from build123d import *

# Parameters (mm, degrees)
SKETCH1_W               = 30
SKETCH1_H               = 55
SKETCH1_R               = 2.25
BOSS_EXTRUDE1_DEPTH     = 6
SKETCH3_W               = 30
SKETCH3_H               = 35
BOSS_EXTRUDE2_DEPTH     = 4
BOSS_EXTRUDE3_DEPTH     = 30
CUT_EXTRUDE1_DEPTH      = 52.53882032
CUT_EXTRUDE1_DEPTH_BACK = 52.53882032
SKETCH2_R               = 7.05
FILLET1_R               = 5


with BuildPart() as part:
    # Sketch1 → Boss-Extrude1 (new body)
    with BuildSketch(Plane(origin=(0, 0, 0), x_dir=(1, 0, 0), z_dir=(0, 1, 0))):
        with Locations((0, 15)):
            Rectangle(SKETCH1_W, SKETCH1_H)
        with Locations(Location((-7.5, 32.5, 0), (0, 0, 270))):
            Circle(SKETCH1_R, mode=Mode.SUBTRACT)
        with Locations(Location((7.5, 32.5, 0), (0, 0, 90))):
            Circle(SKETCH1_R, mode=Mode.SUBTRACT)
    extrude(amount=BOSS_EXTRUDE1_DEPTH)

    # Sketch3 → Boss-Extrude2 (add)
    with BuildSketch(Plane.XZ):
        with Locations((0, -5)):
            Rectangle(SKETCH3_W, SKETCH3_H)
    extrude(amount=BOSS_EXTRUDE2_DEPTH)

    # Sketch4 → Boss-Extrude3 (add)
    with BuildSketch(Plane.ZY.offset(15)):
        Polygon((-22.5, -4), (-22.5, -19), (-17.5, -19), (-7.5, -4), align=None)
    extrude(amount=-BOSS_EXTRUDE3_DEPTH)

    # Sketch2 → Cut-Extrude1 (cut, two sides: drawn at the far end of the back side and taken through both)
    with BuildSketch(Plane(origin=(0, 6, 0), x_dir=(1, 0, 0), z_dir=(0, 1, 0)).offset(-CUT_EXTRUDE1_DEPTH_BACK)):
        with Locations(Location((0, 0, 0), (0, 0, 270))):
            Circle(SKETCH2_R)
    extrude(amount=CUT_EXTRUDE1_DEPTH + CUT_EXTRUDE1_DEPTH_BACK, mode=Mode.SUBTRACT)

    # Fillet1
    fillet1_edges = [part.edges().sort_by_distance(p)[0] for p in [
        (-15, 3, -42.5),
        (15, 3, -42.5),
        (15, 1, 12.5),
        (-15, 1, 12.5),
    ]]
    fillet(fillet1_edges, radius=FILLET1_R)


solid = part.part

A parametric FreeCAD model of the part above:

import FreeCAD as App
import Part
import Sketcher

V = App.Vector


def edges_at(feature, points):
    """Names of the edges that pass closest to the given points."""
    edges = feature.Shape.Edges
    near = lambda p: min(range(len(edges)), key=lambda i: edges[i].distToShape(Part.Vertex(*p))[0])
    return sorted({f"Edge{near(p) + 1}" for p in points})


def add_polygon(sketch, points):
    """Adds a closed chain of lines whose ends are joined by coincident constraints."""
    first, n = sketch.GeometryCount, len(points)
    for a, b in zip(points, points[1:] + points[:1]):
        sketch.addGeometry(Part.LineSegment(App.Vector(*a, 0), App.Vector(*b, 0)), False)
    for i in range(n):
        sketch.addConstraint(Sketcher.Constraint("Coincident", first + i, 2, first + (i + 1) % n, 1))

doc = App.newDocument("Part")
body = doc.addObject("PartDesign::Body", "Body")

sketch1 = doc.addObject("Sketcher::SketchObject", "Sketch")
body.addObject(sketch1)
sketch1.AttachmentSupport = (doc.XZ_Plane, [""])
sketch1.MapMode = "FlatFace"
add_polygon(sketch1, [(-15, -42.5), (-15, 12.5), (15, 12.5), (15, -42.5)])
sketch1.addGeometry(Part.Circle(V(-7.5, -32.5, 0), V(0, 0, 1), 2.2), False)
sketch1.addGeometry(Part.Circle(V(7.5, -32.5, 0), V(0, 0, 1), 2.2), False)
sketch1.addConstraint([
    Sketcher.Constraint("Vertical", 0),
    Sketcher.Constraint("Horizontal", 1),
    Sketcher.Constraint("Vertical", 2),
    Sketcher.Constraint("Horizontal", 3),
    Sketcher.Constraint("Equal", 4, 5),
    Sketcher.Constraint("Symmetric", 4, 3, 5, 3, -2),
    Sketcher.Constraint("Diameter", 4, 4.5),
    Sketcher.Constraint("DistanceX", 1, 1, 1, 2, 30.0),
    Sketcher.Constraint("DistanceY", 0, 1, 0, 2, 55.0),
    Sketcher.Constraint("DistanceX", 0, 2, -1, 1, 15.0),
    Sketcher.Constraint("DistanceX", 4, 3, 5, 3, 15.0),
    Sketcher.Constraint("DistanceY", 4, 3, 0, 2, 45.0),
    Sketcher.Constraint("DistanceY", 4, 3, -1, 1, 32.5),
])
pad1 = doc.addObject("PartDesign::Pad", "Pad")
body.addObject(pad1)
pad1.Profile = sketch1
pad1.Length = 6
pad1.Reversed = True

sketch2 = doc.addObject("Sketcher::SketchObject", "Sketch001")
body.addObject(sketch2)
sketch2.AttachmentSupport = (doc.XZ_Plane, [""])
sketch2.MapMode = "FlatFace"
add_polygon(sketch2, [(-15, 12), (-15, -22), (15, -22), (15, 12)])
sketch2.addConstraint([
    Sketcher.Constraint("Vertical", 0),
    Sketcher.Constraint("Horizontal", 1),
    Sketcher.Constraint("Vertical", 2),
    Sketcher.Constraint("Horizontal", 3),
    Sketcher.Constraint("DistanceX", 1, 1, 1, 2, 30.0),
    Sketcher.Constraint("DistanceY", 0, 2, 0, 1, 35.0),
    Sketcher.Constraint("DistanceX", 0, 2, -1, 1, 15.0),
    Sketcher.Constraint("DistanceY", 0, 2, -1, 1, 22.5),
])
pad2 = doc.addObject("PartDesign::Pad", "Pad001")
body.addObject(pad2)
pad2.Profile = sketch2
pad2.Length = 4

sketch3 = doc.addObject("Sketcher::SketchObject", "Sketch002")
body.addObject(sketch3)
sketch3.AttachmentSupport = (doc.YZ_Plane, [""])
sketch3.MapMode = "FlatFace"
sketch3.AttachmentOffset = App.Placement(V(0, 0, -15), App.Rotation())
add_polygon(sketch3, [(-4, -22), (-19, -22), (-19, -18), (-4, -8)])
sketch3.addConstraint([
    Sketcher.Constraint("Horizontal", 0),
    Sketcher.Constraint("Vertical", 1),
    Sketcher.Constraint("Vertical", 3),
    Sketcher.Constraint("Equal", 0, 3),
    Sketcher.Constraint("DistanceX", 0, 2, 0, 1, 15.0),
    Sketcher.Constraint("DistanceY", 1, 1, 1, 2, 5.0),
    Sketcher.Constraint("DistanceX", 0, 2, -1, 1, 19.0),
    Sketcher.Constraint("DistanceY", 0, 2, -1, 1, 22.5),
])
pad3 = doc.addObject("PartDesign::Pad", "Pad002")
body.addObject(pad3)
pad3.Profile = sketch3
pad3.Length = 30

sketch4 = doc.addObject("Sketcher::SketchObject", "Sketch003")
body.addObject(sketch4)
sketch4.AttachmentSupport = (doc.XZ_Plane, [""])
sketch4.MapMode = "FlatFace"
sketch4.AttachmentOffset = App.Placement(V(0, 0, -6), App.Rotation())
sketch4.addGeometry(Part.Circle(V(0, 0, 0), V(0, 0, 1), 7), False)
sketch4.addConstraint([
    Sketcher.Constraint("Coincident", 0, 3, -1, 1),
    Sketcher.Constraint("Diameter", 0, 14.1),
])
pocket1 = doc.addObject("PartDesign::Pocket", "Pocket")
body.addObject(pocket1)
pocket1.Profile = sketch4
pocket1.Type = "ThroughAll"
pocket1.Midplane = True
doc.recompute()

fillet = doc.addObject("PartDesign::Fillet", "Fillet")
body.addObject(fillet)
fillet.Base = (pocket1, edges_at(pocket1, [
    (-15, 3, -42.5),
    (15, 3, -42.5),
    (15, 1, 12.5),
    (-15, 1, 12.5),
]))
fillet.Radius = 5

doc.recompute()
